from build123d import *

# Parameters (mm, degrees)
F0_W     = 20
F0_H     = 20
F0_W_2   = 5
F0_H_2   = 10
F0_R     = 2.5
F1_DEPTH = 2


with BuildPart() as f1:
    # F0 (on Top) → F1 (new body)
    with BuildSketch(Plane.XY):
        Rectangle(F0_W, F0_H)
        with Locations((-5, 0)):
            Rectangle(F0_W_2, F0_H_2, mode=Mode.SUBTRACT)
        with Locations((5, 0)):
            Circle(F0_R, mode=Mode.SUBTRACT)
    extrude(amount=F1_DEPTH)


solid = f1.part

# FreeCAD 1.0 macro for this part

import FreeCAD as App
import Part
import Sketcher


def add_polygon(sketch, points):
    """Adds a closed chain of lines whose ends are joined by coincident constraints."""
    first, n = sketch.GeometryCount, len(points)
    for a, b in zip(points, points[1:] + points[:1]):
        sketch.addGeometry(Part.LineSegment(App.Vector(*a, 0), App.Vector(*b, 0)), False)
    for i in range(n):
        sketch.addConstraint(Sketcher.Constraint("Coincident", first + i, 2, first + (i + 1) % n, 1))

doc = App.newDocument("Part")
params = doc.addObject("Spreadsheet::Sheet", "Params")
for row, (alias, value) in enumerate([
    ("sketch1_diameter", "5 mm"),
    ("sketch1_width", "20 mm"),
    ("sketch1_width2", "5 mm"),
    ("sketch1_height", "10 mm"),
    ("pad1_length", "2 mm"),
], start=1):
    params.set(f"A{row}", alias)
    params.set(f"B{row}", "=" + value)
    params.setAlias(f"B{row}", alias)

body = doc.addObject("PartDesign::Body", "Body")

# Sketch on XY plane
sketch1 = body.newObject("Sketcher::SketchObject", "Sketch")
sketch1.AttachmentSupport = (doc.getObject("XY_Plane"), [""])
sketch1.MapMode = "FlatFace"
add_polygon(sketch1, [(-10, 10), (-10, -10), (10, -10), (10, 10)])  # lines 0-3
add_polygon(sketch1, [(-2.5, -5), (-7.5, -5), (-7.5, 5), (-2.5, 5)])  # lines 4-7
sketch1.addGeometry(Part.Circle(App.Vector(5, 0, 0), App.Vector(0, 0, 1), 2.5), False)  # 8
sketch1.addConstraint(Sketcher.Constraint("Vertical", 0))
sketch1.addConstraint(Sketcher.Constraint("Horizontal", 1))
sketch1.addConstraint(Sketcher.Constraint("Vertical", 2))
sketch1.addConstraint(Sketcher.Constraint("Horizontal", 3))
sketch1.addConstraint(Sketcher.Constraint("Horizontal", 4))
sketch1.addConstraint(Sketcher.Constraint("Vertical", 5))
sketch1.addConstraint(Sketcher.Constraint("Horizontal", 6))
sketch1.addConstraint(Sketcher.Constraint("Vertical", 7))
sketch1.addConstraint(Sketcher.Constraint("Symmetric", 0, 2, 2, 2, -1, 1))
sketch1.addConstraint(Sketcher.Constraint("PointOnObject", 8, 3, -1))
sketch1.addConstraint(Sketcher.Constraint("Equal", 3, 0))
sketch1.addConstraint(Sketcher.Constraint("Diameter", 8, 5.0))
sketch1.addConstraint(Sketcher.Constraint("DistanceX", 1, 1, 1, 2, 20.0))
sketch1.addConstraint(Sketcher.Constraint("DistanceX", 4, 2, 4, 1, 5.0))
sketch1.addConstraint(Sketcher.Constraint("DistanceY", 5, 1, 5, 2, 10.0))
sketch1.addConstraint(Sketcher.Constraint("DistanceX", -1, 1, 8, 3, 5.0))
sketch1.addConstraint(Sketcher.Constraint("DistanceY", 4, 2, -1, 1, 5.0))
sketch1.addConstraint(Sketcher.Constraint("DistanceX", 4, 2, -1, 1, 7.5))
sketch1.setExpression("Constraints[19]", "Params.sketch1_diameter")
sketch1.setExpression("Constraints[20]", "Params.sketch1_width")
sketch1.setExpression("Constraints[21]", "Params.sketch1_width2")
sketch1.setExpression("Constraints[22]", "Params.sketch1_height")
pad1 = body.newObject("PartDesign::Pad", "Pad")
pad1.Profile = sketch1
pad1.setExpression("Length", "Params.pad1_length")

doc.recompute()
